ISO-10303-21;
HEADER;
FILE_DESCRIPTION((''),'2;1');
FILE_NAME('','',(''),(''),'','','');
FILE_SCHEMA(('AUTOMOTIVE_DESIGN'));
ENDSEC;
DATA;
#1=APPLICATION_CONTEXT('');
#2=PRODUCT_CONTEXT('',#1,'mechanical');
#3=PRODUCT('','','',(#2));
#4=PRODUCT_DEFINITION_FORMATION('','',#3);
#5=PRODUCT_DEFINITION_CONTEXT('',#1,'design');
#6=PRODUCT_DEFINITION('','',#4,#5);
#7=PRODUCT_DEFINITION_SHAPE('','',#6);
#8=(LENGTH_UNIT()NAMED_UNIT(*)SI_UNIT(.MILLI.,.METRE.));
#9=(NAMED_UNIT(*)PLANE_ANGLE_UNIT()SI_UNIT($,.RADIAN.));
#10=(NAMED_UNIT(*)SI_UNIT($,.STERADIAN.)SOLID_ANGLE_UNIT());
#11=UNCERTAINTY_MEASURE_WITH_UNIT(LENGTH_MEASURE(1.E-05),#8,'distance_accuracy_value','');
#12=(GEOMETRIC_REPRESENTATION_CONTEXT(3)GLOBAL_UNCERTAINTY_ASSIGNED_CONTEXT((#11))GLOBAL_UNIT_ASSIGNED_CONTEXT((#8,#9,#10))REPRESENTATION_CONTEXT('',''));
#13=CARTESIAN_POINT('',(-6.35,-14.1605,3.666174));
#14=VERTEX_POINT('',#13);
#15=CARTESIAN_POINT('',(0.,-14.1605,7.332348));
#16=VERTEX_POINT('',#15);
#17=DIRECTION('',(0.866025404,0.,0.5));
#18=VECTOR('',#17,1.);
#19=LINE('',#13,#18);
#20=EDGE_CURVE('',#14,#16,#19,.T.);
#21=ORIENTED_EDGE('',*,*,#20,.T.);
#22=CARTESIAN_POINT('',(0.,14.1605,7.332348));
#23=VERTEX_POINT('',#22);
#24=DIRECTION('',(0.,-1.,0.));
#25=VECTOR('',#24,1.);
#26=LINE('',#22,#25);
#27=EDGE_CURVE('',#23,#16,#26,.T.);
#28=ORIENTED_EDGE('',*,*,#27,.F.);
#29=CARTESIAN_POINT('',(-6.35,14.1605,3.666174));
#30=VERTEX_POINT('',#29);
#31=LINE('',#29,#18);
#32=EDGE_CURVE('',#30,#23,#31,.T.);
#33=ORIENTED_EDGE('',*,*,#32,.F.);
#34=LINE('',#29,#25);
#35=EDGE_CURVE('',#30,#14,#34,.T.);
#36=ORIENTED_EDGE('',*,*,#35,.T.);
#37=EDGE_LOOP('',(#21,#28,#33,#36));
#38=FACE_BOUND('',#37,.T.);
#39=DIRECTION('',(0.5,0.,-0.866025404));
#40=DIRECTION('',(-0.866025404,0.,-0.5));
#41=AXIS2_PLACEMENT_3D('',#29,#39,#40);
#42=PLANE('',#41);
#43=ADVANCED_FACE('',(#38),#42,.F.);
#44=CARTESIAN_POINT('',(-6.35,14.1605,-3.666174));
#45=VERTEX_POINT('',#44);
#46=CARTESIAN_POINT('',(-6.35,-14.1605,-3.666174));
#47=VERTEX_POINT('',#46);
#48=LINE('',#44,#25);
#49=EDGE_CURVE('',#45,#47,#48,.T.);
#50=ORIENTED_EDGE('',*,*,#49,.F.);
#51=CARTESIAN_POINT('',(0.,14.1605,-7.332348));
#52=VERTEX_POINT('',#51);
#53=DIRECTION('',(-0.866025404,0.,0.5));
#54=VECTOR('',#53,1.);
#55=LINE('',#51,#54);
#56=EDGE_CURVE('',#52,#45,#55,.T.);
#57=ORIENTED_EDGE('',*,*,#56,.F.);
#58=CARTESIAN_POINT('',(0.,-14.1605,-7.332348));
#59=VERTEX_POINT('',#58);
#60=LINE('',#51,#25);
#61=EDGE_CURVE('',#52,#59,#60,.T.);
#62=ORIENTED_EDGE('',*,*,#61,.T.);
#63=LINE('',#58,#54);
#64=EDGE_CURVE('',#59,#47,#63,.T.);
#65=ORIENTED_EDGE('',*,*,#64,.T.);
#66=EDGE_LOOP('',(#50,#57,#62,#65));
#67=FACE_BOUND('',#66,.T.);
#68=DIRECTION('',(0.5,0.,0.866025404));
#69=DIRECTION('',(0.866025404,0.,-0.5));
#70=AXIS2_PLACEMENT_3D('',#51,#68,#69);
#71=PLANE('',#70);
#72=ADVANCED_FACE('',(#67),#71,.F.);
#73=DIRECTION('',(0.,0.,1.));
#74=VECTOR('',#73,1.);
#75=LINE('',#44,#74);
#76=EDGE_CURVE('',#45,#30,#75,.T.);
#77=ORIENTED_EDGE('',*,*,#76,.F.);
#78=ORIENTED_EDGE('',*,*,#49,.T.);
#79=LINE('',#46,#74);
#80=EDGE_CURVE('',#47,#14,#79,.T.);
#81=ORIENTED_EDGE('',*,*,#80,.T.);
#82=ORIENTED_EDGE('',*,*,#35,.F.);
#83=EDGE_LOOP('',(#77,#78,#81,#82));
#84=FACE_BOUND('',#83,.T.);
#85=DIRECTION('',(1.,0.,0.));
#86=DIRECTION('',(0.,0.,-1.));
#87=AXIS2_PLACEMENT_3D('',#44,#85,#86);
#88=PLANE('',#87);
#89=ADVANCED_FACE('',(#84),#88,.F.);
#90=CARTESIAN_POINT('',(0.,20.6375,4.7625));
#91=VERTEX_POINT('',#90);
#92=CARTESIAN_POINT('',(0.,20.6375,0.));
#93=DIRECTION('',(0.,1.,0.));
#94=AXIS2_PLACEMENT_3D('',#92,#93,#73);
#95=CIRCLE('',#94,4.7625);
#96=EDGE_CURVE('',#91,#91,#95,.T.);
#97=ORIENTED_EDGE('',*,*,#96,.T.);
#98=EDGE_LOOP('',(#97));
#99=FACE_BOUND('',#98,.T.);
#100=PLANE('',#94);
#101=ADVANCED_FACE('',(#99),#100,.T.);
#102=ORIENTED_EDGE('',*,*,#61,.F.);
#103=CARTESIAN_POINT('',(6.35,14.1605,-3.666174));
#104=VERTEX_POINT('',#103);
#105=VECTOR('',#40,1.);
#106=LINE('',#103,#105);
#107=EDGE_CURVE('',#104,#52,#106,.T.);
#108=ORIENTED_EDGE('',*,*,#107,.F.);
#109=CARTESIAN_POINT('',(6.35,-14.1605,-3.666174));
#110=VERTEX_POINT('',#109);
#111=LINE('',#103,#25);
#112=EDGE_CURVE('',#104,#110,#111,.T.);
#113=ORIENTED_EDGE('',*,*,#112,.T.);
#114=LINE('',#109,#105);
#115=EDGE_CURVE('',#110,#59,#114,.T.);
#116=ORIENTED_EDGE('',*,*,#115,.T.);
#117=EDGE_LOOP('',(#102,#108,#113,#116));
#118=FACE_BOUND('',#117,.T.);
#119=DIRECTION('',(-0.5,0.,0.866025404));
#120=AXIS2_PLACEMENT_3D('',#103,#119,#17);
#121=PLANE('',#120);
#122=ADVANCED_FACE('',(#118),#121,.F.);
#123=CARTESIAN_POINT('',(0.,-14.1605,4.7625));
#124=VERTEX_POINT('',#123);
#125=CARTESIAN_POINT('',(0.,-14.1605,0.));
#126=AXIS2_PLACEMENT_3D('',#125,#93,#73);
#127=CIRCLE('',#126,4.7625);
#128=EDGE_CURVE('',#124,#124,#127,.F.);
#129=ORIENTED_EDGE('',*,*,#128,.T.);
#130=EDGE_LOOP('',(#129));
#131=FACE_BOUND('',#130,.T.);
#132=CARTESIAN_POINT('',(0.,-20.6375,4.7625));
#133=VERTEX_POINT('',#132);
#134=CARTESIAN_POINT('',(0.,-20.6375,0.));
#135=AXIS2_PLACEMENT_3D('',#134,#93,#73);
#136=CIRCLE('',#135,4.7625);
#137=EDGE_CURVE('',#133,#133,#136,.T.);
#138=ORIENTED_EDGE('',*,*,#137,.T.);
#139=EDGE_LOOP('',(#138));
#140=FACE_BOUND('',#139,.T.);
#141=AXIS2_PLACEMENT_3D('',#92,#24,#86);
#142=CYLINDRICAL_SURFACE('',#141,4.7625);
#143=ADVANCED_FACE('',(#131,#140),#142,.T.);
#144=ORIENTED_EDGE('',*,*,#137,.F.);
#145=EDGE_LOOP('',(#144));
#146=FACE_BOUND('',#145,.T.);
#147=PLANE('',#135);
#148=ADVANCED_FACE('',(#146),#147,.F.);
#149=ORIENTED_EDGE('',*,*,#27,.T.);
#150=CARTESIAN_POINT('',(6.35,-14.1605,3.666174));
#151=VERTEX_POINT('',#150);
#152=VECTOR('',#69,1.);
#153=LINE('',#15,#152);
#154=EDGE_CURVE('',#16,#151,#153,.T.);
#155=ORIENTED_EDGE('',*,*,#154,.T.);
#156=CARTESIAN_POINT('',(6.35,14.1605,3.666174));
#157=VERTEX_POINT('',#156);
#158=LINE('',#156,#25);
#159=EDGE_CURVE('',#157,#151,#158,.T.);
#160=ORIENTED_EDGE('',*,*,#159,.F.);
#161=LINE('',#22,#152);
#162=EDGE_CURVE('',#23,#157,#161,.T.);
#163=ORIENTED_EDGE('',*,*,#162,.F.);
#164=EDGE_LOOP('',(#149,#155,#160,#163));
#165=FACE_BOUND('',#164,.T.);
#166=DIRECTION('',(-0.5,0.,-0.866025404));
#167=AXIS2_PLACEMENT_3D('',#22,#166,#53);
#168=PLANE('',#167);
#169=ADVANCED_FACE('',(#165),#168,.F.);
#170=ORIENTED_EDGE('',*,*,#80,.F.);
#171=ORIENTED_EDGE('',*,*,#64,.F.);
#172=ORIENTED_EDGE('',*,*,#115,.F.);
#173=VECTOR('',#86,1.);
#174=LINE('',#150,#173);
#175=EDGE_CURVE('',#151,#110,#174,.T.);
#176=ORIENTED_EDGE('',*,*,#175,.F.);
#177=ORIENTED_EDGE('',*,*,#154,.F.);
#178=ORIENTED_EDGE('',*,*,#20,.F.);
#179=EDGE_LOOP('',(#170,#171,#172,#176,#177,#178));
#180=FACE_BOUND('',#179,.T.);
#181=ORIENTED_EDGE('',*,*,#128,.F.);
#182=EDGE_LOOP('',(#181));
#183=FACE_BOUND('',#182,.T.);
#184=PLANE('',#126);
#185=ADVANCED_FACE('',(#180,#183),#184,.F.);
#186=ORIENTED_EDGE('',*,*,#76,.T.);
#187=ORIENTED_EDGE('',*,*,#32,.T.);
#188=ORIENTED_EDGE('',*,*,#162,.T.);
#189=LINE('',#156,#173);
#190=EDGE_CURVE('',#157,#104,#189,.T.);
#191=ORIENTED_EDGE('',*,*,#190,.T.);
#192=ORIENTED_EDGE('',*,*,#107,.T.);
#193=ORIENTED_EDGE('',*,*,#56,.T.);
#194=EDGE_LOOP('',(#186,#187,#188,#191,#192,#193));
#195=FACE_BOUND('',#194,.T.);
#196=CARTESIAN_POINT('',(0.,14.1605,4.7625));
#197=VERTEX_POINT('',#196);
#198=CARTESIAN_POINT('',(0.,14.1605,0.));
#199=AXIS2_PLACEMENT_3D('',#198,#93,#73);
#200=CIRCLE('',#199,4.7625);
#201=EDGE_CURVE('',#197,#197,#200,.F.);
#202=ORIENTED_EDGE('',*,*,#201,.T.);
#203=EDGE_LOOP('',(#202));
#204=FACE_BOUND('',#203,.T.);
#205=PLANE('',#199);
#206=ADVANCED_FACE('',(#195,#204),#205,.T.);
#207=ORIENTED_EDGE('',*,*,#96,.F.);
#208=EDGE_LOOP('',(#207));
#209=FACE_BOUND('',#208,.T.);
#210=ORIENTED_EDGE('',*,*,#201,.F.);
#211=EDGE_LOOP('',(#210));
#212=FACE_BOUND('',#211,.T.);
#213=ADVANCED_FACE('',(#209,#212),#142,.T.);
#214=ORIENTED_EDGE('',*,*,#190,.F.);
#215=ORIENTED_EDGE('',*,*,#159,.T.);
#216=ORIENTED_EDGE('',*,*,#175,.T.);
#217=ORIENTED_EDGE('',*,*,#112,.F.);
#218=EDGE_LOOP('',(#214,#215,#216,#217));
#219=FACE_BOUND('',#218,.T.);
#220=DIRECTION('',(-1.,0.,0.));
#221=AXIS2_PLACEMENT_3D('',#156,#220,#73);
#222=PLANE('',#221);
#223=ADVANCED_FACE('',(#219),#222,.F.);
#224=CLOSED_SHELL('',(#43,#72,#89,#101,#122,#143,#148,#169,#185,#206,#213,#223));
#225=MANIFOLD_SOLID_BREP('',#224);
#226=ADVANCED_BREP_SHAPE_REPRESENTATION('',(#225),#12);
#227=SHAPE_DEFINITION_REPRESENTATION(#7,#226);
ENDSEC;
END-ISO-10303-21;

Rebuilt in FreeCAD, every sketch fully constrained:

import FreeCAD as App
import Part
import Sketcher
Q = App.Units.Quantity


def add_polygon(sketch, points):
    """Adds a closed chain of lines whose ends are joined by coincident constraints."""
    first, n = sketch.GeometryCount, len(points)
    for a, b in zip(points, points[1:] + points[:1]):
        sketch.addGeometry(Part.LineSegment(App.Vector(*a, 0), App.Vector(*b, 0)), False)
    for i in range(n):
        sketch.addConstraint(Sketcher.Constraint("Coincident", first + i, 2, first + (i + 1) % n, 1))

doc = App.newDocument("Part")
body = doc.addObject("PartDesign::Body", "Body")

# Sketch on XZ plane
sketch1 = body.newObject("Sketcher::SketchObject", "Sketch")
sketch1.AttachmentSupport = (doc.getObject("XZ_Plane"), [""])
sketch1.MapMode = "FlatFace"
add_polygon(sketch1, [(6, 4), (6, -4), (0, -7), (-6, -4), (-6, 4), (0, 7)])  # lines 0-5
sketch1.addConstraint([
    Sketcher.Constraint("Vertical", 0),
    Sketcher.Constraint("Vertical", 3),
    Sketcher.Constraint("Symmetric", 0, 2, 3, 2, -1, 1),
    Sketcher.Constraint("Symmetric", 1, 2, 4, 2, -1, 1),
    Sketcher.Constraint("PointOnObject", 1, 2, -2),
    Sketcher.Constraint("Parallel", 2, 5),
    Sketcher.Constraint("Horizontal", 0, 2, 2, 2),
    Sketcher.Constraint("Angle", 1, Q("-150 deg")),
    Sketcher.Constraint("DistanceX", 2, 2, 0, 2, Q("0.5 in")),
    Sketcher.Constraint("DistanceY", 0, 2, 0, 1, 7.332348),
])
pad1 = body.newObject("PartDesign::Pad", "Pad")
pad1.Profile = sketch1
pad1.Length = Q("1.115 in")
pad1.Midplane = True

# Sketch on XZ plane
sketch2 = body.newObject("Sketcher::SketchObject", "Sketch001")
sketch2.AttachmentSupport = (doc.getObject("XZ_Plane"), [""])
sketch2.MapMode = "FlatFace"
sketch2.addGeometry(Part.Circle(App.Vector(0, 0, 0), App.Vector(0, 0, 1), 4.8), False)
sketch2.addConstraint([
    Sketcher.Constraint("Coincident", 0, 3, -1, 1),
    Sketcher.Constraint("Diameter", 0, Q("0.375 in")),
])
pad2 = body.newObject("PartDesign::Pad", "Pad001")
pad2.Profile = sketch2
pad2.Length = Q("1.625 in")
pad2.Midplane = True

doc.recompute()
